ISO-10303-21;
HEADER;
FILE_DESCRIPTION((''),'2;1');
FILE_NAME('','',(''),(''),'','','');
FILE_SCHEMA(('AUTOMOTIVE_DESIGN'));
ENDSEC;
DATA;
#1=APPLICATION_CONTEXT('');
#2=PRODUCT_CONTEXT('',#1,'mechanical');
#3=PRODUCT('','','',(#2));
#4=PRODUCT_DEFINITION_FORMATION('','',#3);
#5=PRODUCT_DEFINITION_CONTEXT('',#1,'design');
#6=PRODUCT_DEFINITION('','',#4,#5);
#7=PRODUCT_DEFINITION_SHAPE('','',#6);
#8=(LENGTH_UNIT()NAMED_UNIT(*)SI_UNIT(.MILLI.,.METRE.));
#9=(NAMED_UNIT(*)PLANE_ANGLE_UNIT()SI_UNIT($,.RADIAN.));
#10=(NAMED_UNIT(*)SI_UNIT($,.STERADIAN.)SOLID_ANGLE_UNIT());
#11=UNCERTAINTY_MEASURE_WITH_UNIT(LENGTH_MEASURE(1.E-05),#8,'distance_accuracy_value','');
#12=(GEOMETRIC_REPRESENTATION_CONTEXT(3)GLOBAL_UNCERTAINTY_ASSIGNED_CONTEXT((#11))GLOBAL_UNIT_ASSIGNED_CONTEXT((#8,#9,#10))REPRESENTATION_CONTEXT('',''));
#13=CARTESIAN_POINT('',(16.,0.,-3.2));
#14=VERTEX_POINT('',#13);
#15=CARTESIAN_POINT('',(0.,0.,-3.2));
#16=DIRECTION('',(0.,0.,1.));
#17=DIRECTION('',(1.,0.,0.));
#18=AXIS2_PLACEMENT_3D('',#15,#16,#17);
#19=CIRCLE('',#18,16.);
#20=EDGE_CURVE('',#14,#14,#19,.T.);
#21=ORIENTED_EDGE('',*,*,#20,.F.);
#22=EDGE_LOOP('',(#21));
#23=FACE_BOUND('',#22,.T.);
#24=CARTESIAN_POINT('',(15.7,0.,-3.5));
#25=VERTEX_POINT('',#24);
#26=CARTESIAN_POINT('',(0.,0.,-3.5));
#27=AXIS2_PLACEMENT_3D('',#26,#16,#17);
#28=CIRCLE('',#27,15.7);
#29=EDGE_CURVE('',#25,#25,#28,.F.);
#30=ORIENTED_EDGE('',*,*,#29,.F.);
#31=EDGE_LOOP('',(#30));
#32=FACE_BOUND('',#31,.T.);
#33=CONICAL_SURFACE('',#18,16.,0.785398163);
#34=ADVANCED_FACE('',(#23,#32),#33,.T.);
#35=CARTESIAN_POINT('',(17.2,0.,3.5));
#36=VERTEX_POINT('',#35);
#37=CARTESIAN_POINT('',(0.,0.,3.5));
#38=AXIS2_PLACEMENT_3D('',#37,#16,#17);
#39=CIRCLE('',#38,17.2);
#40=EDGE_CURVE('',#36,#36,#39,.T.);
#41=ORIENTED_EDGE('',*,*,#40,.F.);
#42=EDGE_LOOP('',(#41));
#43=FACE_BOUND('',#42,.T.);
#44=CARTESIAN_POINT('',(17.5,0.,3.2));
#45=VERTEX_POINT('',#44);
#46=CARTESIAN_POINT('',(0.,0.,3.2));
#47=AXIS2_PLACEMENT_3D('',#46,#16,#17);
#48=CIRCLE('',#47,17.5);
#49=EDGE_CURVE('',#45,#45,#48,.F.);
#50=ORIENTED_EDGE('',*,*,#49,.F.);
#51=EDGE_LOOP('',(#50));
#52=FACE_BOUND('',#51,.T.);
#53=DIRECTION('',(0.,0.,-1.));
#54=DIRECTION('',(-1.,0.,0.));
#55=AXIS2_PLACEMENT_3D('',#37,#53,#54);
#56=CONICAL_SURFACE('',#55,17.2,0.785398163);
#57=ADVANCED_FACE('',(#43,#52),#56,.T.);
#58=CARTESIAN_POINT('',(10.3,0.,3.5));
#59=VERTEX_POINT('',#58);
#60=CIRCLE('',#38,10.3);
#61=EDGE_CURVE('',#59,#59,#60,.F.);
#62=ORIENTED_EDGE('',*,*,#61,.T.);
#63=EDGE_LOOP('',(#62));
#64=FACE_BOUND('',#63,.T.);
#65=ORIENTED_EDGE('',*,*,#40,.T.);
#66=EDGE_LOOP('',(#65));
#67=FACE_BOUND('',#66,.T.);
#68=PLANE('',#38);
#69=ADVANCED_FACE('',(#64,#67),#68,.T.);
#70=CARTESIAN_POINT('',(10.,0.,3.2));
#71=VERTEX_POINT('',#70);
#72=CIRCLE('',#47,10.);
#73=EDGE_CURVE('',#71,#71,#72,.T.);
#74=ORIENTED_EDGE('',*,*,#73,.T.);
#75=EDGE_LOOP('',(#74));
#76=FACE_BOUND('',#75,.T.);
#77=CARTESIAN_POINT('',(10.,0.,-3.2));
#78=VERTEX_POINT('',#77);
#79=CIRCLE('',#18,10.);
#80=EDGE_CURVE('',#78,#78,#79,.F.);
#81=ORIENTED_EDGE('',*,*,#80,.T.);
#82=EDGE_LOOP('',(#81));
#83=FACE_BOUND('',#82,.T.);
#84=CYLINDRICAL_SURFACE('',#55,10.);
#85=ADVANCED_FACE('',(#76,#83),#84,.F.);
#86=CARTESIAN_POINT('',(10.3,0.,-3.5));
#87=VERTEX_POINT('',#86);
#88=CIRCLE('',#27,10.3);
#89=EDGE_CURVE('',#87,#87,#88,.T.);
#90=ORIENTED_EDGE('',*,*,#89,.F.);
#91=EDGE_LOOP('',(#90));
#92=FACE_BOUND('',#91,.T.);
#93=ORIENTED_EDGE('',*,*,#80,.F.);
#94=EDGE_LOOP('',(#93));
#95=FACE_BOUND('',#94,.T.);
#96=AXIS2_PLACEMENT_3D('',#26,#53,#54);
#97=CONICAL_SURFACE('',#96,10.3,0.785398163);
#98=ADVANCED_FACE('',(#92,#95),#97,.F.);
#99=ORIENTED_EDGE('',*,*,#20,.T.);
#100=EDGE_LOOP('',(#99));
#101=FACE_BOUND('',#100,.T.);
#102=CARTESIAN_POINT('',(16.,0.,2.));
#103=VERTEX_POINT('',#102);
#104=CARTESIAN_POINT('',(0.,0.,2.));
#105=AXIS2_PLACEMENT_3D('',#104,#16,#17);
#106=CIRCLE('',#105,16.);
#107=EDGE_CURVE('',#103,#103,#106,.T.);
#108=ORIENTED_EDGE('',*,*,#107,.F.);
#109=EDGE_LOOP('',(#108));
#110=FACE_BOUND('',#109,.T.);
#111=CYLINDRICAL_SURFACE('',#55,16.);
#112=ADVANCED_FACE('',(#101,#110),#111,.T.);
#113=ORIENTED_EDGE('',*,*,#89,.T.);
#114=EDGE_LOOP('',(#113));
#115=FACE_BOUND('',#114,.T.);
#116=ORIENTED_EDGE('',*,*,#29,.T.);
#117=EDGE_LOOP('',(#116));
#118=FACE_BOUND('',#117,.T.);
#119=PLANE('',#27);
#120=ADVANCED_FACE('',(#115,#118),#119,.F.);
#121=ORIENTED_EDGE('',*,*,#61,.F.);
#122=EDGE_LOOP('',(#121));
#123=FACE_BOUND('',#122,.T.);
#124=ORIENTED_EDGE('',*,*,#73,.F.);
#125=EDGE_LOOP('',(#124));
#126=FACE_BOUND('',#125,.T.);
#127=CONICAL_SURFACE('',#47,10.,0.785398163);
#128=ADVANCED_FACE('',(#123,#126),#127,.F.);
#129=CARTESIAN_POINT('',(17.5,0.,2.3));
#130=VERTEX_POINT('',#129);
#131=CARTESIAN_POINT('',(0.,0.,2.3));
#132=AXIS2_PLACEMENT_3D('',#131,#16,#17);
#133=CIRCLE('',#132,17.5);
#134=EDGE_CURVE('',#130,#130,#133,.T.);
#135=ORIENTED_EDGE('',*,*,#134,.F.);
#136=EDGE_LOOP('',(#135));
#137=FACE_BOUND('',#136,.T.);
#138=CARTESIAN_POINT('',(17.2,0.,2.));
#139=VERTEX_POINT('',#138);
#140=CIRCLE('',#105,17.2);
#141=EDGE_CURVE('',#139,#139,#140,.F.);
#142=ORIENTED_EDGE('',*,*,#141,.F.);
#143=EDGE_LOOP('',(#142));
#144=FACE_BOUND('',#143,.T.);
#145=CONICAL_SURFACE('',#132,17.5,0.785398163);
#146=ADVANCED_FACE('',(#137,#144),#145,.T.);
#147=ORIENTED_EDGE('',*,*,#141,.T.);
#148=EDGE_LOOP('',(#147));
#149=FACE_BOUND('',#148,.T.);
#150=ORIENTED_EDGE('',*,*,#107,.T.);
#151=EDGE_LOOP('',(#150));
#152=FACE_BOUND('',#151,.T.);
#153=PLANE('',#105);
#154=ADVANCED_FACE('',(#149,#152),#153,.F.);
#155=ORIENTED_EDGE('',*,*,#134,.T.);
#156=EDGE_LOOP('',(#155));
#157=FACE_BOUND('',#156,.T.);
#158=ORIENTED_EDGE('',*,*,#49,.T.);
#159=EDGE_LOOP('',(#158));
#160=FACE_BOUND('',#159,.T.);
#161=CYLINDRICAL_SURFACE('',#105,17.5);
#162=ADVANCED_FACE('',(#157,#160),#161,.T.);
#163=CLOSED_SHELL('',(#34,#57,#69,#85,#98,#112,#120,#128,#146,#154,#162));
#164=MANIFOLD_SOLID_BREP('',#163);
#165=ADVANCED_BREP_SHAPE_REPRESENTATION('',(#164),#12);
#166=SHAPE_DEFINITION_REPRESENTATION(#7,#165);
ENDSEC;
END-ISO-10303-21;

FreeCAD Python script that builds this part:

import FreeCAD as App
import Part
import Sketcher
from FreeCAD import Vector


def edges_at(feature, points):
    """Names of the edges that pass closest to the given points."""
    edges = feature.Shape.Edges
    near = lambda p: min(range(len(edges)), key=lambda i: edges[i].distToShape(Part.Vertex(*p))[0])
    return sorted({f"Edge{near(p) + 1}" for p in points})

doc = App.newDocument("Part")
body = doc.addObject("PartDesign::Body", "Body")

# Sketch on XY plane
sketch1 = body.newObject("Sketcher::SketchObject", "Sketch")
sketch1.AttachmentSupport = (doc.getObject("XY_Plane"), [""])
sketch1.MapMode = "FlatFace"
sketch1.addGeometry(Part.Circle(Vector(0, 0, 0), Vector(0, 0, 1), 16), False)
sketch1.addGeometry(Part.Circle(Vector(0, 0, 0), Vector(0, 0, 1), 10), False)
sketch1.addConstraint(Sketcher.Constraint("Coincident", 0, 3, -1, 1))
sketch1.addConstraint(Sketcher.Constraint("Coincident", 1, 3, -1, 1))
sketch1.addConstraint(Sketcher.Constraint("Diameter", 0, 32.0))
sketch1.addConstraint(Sketcher.Constraint("Diameter", 1, 20.0))
pad1 = body.newObject("PartDesign::Pad", "Pad")
pad1.Profile = sketch1
pad1.Length = 7
pad1.Midplane = True

# Sketch on XY plane
sketch2 = body.newObject("Sketcher::SketchObject", "Sketch001")
sketch2.AttachmentSupport = (doc.getObject("XY_Plane"), [""])
sketch2.MapMode = "FlatFace"
sketch2.AttachmentOffset = App.Placement(Vector(0, 0, 2), App.Rotation())
sketch2.addGeometry(Part.Circle(Vector(0, 0, 0), Vector(0, 0, 1), 17.5), False)
sketch2.addGeometry(Part.Circle(Vector(0, 0, 0), Vector(0, 0, 1), 10), False)
sketch2.addConstraint(Sketcher.Constraint("Coincident", 0, 3, -1, 1))
sketch2.addConstraint(Sketcher.Constraint("Coincident", 1, 3, -1, 1))
sketch2.addConstraint(Sketcher.Constraint("Diameter", 0, 35.0))
sketch2.addConstraint(Sketcher.Constraint("Diameter", 1, 20.0))
pad2 = body.newObject("PartDesign::Pad", "Pad001")
pad2.Profile = sketch2
pad2.Length = 1.5
doc.recompute()

chamfer = body.newObject("PartDesign::Chamfer", "Chamfer")
chamfer.Base = (pad2, edges_at(pad2, [
    (-17.5, 0, 3.5),
    (-17.5, 0, 2),
    (-16, 0, -3.5),
    (-10, 0, -3.5),
    (-10, 0, 3.5),
]))
chamfer.Size = 0.3

doc.recompute()
